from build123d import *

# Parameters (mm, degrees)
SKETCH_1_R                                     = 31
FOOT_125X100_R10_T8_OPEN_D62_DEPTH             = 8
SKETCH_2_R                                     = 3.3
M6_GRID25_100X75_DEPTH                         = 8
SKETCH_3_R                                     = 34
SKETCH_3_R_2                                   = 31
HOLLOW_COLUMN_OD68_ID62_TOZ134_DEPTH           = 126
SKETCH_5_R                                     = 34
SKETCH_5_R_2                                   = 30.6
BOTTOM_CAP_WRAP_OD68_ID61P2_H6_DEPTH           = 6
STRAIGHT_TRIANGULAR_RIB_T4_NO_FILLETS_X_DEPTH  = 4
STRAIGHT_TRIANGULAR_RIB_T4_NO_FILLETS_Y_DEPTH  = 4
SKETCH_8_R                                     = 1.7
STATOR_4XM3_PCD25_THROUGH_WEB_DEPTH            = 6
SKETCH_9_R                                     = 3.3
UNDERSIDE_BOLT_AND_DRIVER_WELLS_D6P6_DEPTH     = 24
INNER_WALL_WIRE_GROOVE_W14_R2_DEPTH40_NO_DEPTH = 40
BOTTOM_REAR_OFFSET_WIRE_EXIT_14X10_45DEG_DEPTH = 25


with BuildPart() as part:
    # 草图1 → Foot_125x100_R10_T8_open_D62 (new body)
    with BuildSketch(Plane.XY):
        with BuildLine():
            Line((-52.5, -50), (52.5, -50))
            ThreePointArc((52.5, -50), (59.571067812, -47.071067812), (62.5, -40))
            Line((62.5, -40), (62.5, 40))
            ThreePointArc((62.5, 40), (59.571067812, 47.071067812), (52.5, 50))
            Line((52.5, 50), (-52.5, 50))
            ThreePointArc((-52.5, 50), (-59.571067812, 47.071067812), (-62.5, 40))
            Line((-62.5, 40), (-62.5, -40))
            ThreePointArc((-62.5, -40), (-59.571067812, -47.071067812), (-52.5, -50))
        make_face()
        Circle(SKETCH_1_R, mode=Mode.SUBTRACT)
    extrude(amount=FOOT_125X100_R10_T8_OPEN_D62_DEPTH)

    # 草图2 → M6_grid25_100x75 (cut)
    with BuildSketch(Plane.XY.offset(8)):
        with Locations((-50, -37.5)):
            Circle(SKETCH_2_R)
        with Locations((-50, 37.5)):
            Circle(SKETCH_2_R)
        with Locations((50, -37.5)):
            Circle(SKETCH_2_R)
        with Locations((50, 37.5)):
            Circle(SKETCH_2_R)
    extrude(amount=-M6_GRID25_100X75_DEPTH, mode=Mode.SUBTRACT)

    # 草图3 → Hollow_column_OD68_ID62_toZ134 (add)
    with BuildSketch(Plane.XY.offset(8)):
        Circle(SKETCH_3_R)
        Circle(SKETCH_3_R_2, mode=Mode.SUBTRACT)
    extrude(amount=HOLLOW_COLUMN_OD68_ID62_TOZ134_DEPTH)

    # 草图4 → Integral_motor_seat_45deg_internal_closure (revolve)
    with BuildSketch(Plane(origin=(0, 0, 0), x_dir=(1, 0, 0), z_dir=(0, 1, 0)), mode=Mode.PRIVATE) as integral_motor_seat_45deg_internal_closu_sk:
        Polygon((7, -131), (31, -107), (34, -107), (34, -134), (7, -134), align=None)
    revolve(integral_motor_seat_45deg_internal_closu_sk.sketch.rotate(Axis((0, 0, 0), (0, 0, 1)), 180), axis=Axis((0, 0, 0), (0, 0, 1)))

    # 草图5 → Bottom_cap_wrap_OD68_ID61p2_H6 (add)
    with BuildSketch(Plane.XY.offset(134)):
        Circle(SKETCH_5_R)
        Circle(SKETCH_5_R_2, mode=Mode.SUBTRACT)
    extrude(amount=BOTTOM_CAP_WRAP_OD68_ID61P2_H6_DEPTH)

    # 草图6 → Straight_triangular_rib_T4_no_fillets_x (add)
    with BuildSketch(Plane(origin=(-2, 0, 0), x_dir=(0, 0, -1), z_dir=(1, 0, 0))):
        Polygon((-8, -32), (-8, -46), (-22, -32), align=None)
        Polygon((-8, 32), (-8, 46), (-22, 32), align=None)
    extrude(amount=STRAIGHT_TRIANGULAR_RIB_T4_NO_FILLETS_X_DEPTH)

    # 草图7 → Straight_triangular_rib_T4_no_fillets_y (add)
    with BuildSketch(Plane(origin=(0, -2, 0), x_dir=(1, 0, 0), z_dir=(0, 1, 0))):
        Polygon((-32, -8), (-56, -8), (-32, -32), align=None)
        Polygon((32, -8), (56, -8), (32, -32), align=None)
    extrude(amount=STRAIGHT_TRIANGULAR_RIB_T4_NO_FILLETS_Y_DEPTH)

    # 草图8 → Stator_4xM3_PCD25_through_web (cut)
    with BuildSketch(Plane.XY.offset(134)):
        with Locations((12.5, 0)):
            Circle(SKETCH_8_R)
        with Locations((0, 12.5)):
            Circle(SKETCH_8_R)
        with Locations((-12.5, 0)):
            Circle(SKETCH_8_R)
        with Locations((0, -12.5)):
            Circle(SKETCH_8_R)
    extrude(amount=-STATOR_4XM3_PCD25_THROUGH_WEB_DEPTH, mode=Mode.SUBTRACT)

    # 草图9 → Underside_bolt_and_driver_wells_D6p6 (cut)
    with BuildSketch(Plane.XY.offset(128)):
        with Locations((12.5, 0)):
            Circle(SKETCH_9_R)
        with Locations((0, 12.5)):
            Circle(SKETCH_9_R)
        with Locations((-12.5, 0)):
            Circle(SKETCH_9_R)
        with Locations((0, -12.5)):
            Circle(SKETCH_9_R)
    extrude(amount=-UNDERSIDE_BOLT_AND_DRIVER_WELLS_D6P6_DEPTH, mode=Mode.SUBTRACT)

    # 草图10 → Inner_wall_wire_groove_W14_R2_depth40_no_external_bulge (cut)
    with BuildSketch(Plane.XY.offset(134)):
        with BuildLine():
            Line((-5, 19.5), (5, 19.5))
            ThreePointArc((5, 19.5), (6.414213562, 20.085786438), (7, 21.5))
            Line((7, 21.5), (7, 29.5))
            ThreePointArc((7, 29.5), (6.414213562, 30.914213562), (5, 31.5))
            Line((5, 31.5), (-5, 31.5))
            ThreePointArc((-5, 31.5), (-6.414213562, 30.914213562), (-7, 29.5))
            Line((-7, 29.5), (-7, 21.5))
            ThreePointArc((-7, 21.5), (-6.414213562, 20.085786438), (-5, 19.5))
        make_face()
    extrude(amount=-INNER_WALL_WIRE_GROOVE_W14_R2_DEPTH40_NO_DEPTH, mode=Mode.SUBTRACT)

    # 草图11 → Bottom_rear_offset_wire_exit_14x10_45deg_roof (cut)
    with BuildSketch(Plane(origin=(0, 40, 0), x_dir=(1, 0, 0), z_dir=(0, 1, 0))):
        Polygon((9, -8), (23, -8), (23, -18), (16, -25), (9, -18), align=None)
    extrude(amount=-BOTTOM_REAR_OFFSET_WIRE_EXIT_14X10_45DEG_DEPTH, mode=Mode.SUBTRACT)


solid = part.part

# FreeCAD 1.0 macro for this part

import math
import FreeCAD as App
import Part
import Sketcher
from FreeCAD import Vector

doc = App.newDocument("Part")
body = doc.addObject("PartDesign::Body", "Body")

# Sketch on XY plane
sketch1 = doc.addObject("Sketcher::SketchObject", "Sketch")
body.addObject(sketch1)
sketch1.AttachmentSupport = (doc.XY_Plane, [""])
sketch1.MapMode = "FlatFace"
sketch1.addGeometry([
    Part.LineSegment(Vector(-52.5, -50, 0), Vector(52.5, -50, 0)),  # 0
    Part.ArcOfCircle(Part.Circle(Vector(52.5, -40, 0), Vector(0, 0, 1), 10), math.radians(-90), math.radians(0)),  # 1
    Part.LineSegment(Vector(62.5, -40, 0), Vector(62.5, 40, 0)),  # 2
    Part.ArcOfCircle(Part.Circle(Vector(52.5, 40, 0), Vector(0, 0, 1), 10), math.radians(0), math.radians(90)),  # 3
    Part.LineSegment(Vector(52.5, 50, 0), Vector(-52.5, 50, 0)),  # 4
    Part.ArcOfCircle(Part.Circle(Vector(-52.5, 40, 0), Vector(0, 0, 1), 10), math.radians(90), math.radians(180)),  # 5
    Part.LineSegment(Vector(-62.5, 40, 0), Vector(-62.5, -40, 0)),  # 6
    Part.ArcOfCircle(Part.Circle(Vector(-52.5, -40, 0), Vector(0, 0, 1), 10), math.radians(180), math.radians(270)),  # 7
    Part.Circle(Vector(0, 0, 0), Vector(0, 0, 1), 31),  # 8
], False)
sketch1.addConstraint([
    Sketcher.Constraint("Tangent", 0, 2, 1, 1),
    Sketcher.Constraint("Tangent", 1, 2, 2, 1),
    Sketcher.Constraint("Tangent", 2, 2, 3, 1),
    Sketcher.Constraint("Tangent", 3, 2, 4, 1),
    Sketcher.Constraint("Tangent", 4, 2, 5, 1),
    Sketcher.Constraint("Tangent", 5, 2, 6, 1),
    Sketcher.Constraint("Tangent", 6, 2, 7, 1),
    Sketcher.Constraint("Tangent", 7, 2, 0, 1),
    Sketcher.Constraint("Horizontal", 0),
    Sketcher.Constraint("Vertical", 2),
    Sketcher.Constraint("Horizontal", 4),
    Sketcher.Constraint("Vertical", 6),
    Sketcher.Constraint("Coincident", 8, 3, -1, 1),
    Sketcher.Constraint("Equal", 1, 3),
    Sketcher.Constraint("Equal", 3, 5),
    Sketcher.Constraint("Equal", 5, 7),
    Sketcher.Constraint("Symmetric", 1, 3, 5, 3, -1, 1),
    Sketcher.Constraint("Diameter", 8, 62.0),
    Sketcher.Constraint("Radius", 1, 10.0),
    Sketcher.Constraint("DistanceX", 0, 1, 0, 2, 105.0),
    Sketcher.Constraint("DistanceY", 2, 1, 2, 2, 80.0),
])
pad1 = doc.addObject("PartDesign::Pad", "Pad")
body.addObject(pad1)
pad1.Profile = sketch1
pad1.Length = 8

# Sketch on XY plane
sketch2 = doc.addObject("Sketcher::SketchObject", "Sketch001")
body.addObject(sketch2)
sketch2.AttachmentSupport = (doc.XY_Plane, [""])
sketch2.MapMode = "FlatFace"
sketch2.AttachmentOffset = App.Placement(Vector(0, 0, 8), App.Rotation())
sketch2.addGeometry([
    Part.Circle(Vector(-50, -37.5, 0), Vector(0, 0, 1), 3.3),
    Part.Circle(Vector(-50, 37.5, 0), Vector(0, 0, 1), 3.3),
    Part.Circle(Vector(50, -37.5, 0), Vector(0, 0, 1), 3.3),
    Part.Circle(Vector(50, 37.5, 0), Vector(0, 0, 1), 3.3),
], False)
sketch2.addConstraint([
    Sketcher.Constraint("Equal", 0, 1),
    Sketcher.Constraint("Equal", 1, 2),
    Sketcher.Constraint("Equal", 2, 3),
    Sketcher.Constraint("Symmetric", 1, 3, 2, 3, -1, 1),
    Sketcher.Constraint("Symmetric", 0, 3, 3, 3, -1, 1),
    Sketcher.Constraint("Symmetric", 0, 3, 2, 3, -2),
    Sketcher.Constraint("Diameter", 0, 6.6),
    Sketcher.Constraint("DistanceX", 0, 3, -1, 1, 50.0),
    Sketcher.Constraint("DistanceY", 0, 3, 1, 3, 75.0),
])
pocket1 = doc.addObject("PartDesign::Pocket", "Pocket")
body.addObject(pocket1)
pocket1.Profile = sketch2
pocket1.Length = 8

# Sketch on XY plane
sketch3 = doc.addObject("Sketcher::SketchObject", "Sketch002")
body.addObject(sketch3)
sketch3.AttachmentSupport = (doc.XY_Plane, [""])
sketch3.MapMode = "FlatFace"
sketch3.AttachmentOffset = App.Placement(Vector(0, 0, 8), App.Rotation())
sketch3.addGeometry([
    Part.Circle(Vector(0, 0, 0), Vector(0, 0, 1), 34),
    Part.Circle(Vector(0, 0, 0), Vector(0, 0, 1), 31),
], False)
sketch3.addConstraint([
    Sketcher.Constraint("Coincident", 0, 3, -1, 1),
    Sketcher.Constraint("Coincident", 1, 3, -1, 1),
    Sketcher.Constraint("Diameter", 0, 68.0),
    Sketcher.Constraint("Diameter", 1, 62.0),
])
pad2 = doc.addObject("PartDesign::Pad", "Pad001")
body.addObject(pad2)
pad2.Profile = sketch3
pad2.Length = 126

# Sketch on XZ plane
sketch4 = doc.addObject("Sketcher::SketchObject", "Sketch003")
body.addObject(sketch4)
sketch4.AttachmentSupport = (doc.XZ_Plane, [""])
sketch4.MapMode = "FlatFace"
sketch4.addGeometry([
    Part.LineSegment(Vector(31, 107, 0), Vector(7, 131, 0)),  # 0
    Part.LineSegment(Vector(7, 131, 0), Vector(7, 134, 0)),  # 1
    Part.LineSegment(Vector(7, 134, 0), Vector(34, 134, 0)),  # 2
    Part.LineSegment(Vector(34, 134, 0), Vector(34, 107, 0)),  # 3
    Part.LineSegment(Vector(34, 107, 0), Vector(31, 107, 0)),  # 4
], False)
sketch4.addConstraint([
    Sketcher.Constraint("Coincident", 0, 2, 1, 1),
    Sketcher.Constraint("Coincident", 1, 2, 2, 1),
    Sketcher.Constraint("Coincident", 2, 2, 3, 1),
    Sketcher.Constraint("Coincident", 3, 2, 4, 1),
    Sketcher.Constraint("Coincident", 4, 2, 0, 1),
    Sketcher.Constraint("Vertical", 1),
    Sketcher.Constraint("Horizontal", 2),
    Sketcher.Constraint("Vertical", 3),
    Sketcher.Constraint("Horizontal", 4),
    Sketcher.Constraint("Equal", 4, 1),
    Sketcher.Constraint("Equal", 2, 3),
    Sketcher.Constraint("DistanceX", 2, 1, 2, 2, 27.0),
    Sketcher.Constraint("DistanceX", 4, 2, 4, 1, 3.0),
    Sketcher.Constraint("DistanceX", -1, 1, 0, 2, 7.0),
    Sketcher.Constraint("DistanceY", -1, 1, 0, 2, 131.0),
])
revolution = doc.addObject("PartDesign::Revolution", "Revolution")
body.addObject(revolution)
revolution.Profile = sketch4
revolution.ReferenceAxis = (sketch4, ["V_Axis"])
revolution.Angle = 360

# Sketch on XY plane
sketch5 = doc.addObject("Sketcher::SketchObject", "Sketch004")
body.addObject(sketch5)
sketch5.AttachmentSupport = (doc.XY_Plane, [""])
sketch5.MapMode = "FlatFace"
sketch5.AttachmentOffset = App.Placement(Vector(0, 0, 134), App.Rotation())
sketch5.addGeometry([
    Part.Circle(Vector(0, 0, 0), Vector(0, 0, 1), 34),
    Part.Circle(Vector(0, 0, 0), Vector(0, 0, 1), 30.6),
], False)
sketch5.addConstraint([
    Sketcher.Constraint("Coincident", 0, 3, -1, 1),
    Sketcher.Constraint("Coincident", 1, 3, -1, 1),
    Sketcher.Constraint("Diameter", 0, 68.0),
    Sketcher.Constraint("Diameter", 1, 61.2),
])
pad3 = doc.addObject("PartDesign::Pad", "Pad002")
body.addObject(pad3)
pad3.Profile = sketch5
pad3.Length = 6

# Sketch on YZ plane
sketch6 = doc.addObject("Sketcher::SketchObject", "Sketch005")
body.addObject(sketch6)
sketch6.AttachmentSupport = (doc.YZ_Plane, [""])
sketch6.MapMode = "FlatFace"
sketch6.AttachmentOffset = App.Placement(Vector(0, 0, -2), App.Rotation())
sketch6.addGeometry([
    Part.LineSegment(Vector(-46, 8, 0), Vector(-32, 8, 0)),  # 0
    Part.LineSegment(Vector(-32, 8, 0), Vector(-32, 22, 0)),  # 1
    Part.LineSegment(Vector(-32, 22, 0), Vector(-46, 8, 0)),  # 2
    Part.LineSegment(Vector(32, 8, 0), Vector(46, 8, 0)),  # 3
    Part.LineSegment(Vector(46, 8, 0), Vector(32, 22, 0)),  # 4
    Part.LineSegment(Vector(32, 22, 0), Vector(32, 8, 0)),  # 5
], False)
sketch6.addConstraint([
    Sketcher.Constraint("Coincident", 0, 2, 1, 1),
    Sketcher.Constraint("Coincident", 1, 2, 2, 1),
    Sketcher.Constraint("Coincident", 2, 2, 0, 1),
    Sketcher.Constraint("Coincident", 3, 2, 4, 1),
    Sketcher.Constraint("Coincident", 4, 2, 5, 1),
    Sketcher.Constraint("Coincident", 5, 2, 3, 1),
    Sketcher.Constraint("Horizontal", 0),
    Sketcher.Constraint("Vertical", 1),
    Sketcher.Constraint("Horizontal", 3),
    Sketcher.Constraint("Vertical", 5),
    Sketcher.Constraint("Symmetric", 2, 2, 3, 2, -2),
    Sketcher.Constraint("Symmetric", 1, 2, 4, 2, -2),
    Sketcher.Constraint("Perpendicular", 2, 4),
    Sketcher.Constraint("DistanceX", 0, 1, 0, 2, 14.0),
    Sketcher.Constraint("DistanceX", 0, 2, -1, 1, 32.0),
    Sketcher.Constraint("DistanceY", -1, 1, 0, 2, 8.0),
])
pad4 = doc.addObject("PartDesign::Pad", "Pad003")
body.addObject(pad4)
pad4.Profile = sketch6
pad4.Length = 4

# Sketch on XZ plane
sketch7 = doc.addObject("Sketcher::SketchObject", "Sketch006")
body.addObject(sketch7)
sketch7.AttachmentSupport = (doc.XZ_Plane, [""])
sketch7.MapMode = "FlatFace"
sketch7.AttachmentOffset = App.Placement(Vector(0, 0, 2), App.Rotation())
sketch7.addGeometry([
    Part.LineSegment(Vector(-32, 8, 0), Vector(-56, 8, 0)),  # 0
    Part.LineSegment(Vector(-56, 8, 0), Vector(-32, 32, 0)),  # 1
    Part.LineSegment(Vector(-32, 32, 0), Vector(-32, 8, 0)),  # 2
    Part.LineSegment(Vector(56, 8, 0), Vector(32, 8, 0)),  # 3
    Part.LineSegment(Vector(32, 8, 0), Vector(32, 32, 0)),  # 4
    Part.LineSegment(Vector(32, 32, 0), Vector(56, 8, 0)),  # 5
], False)
sketch7.addConstraint([
    Sketcher.Constraint("Coincident", 0, 2, 1, 1),
    Sketcher.Constraint("Coincident", 1, 2, 2, 1),
    Sketcher.Constraint("Coincident", 2, 2, 0, 1),
    Sketcher.Constraint("Coincident", 3, 2, 4, 1),
    Sketcher.Constraint("Coincident", 4, 2, 5, 1),
    Sketcher.Constraint("Coincident", 5, 2, 3, 1),
    Sketcher.Constraint("Horizontal", 0),
    Sketcher.Constraint("Vertical", 2),
    Sketcher.Constraint("Horizontal", 3),
    Sketcher.Constraint("Vertical", 4),
    Sketcher.Constraint("Symmetric", 2, 2, 3, 2, -2),
    Sketcher.Constraint("Perpendicular", 1, 5),
    Sketcher.Constraint("Horizontal", 1, 2, 4, 2),
    Sketcher.Constraint("Equal", 0, 3),
    Sketcher.Constraint("DistanceX", 0, 2, 0, 1, 24.0),
    Sketcher.Constraint("DistanceX", 0, 2, -1, 1, 56.0),
    Sketcher.Constraint("DistanceY", -1, 1, 0, 2, 8.0),
])
pad5 = doc.addObject("PartDesign::Pad", "Pad004")
body.addObject(pad5)
pad5.Profile = sketch7
pad5.Length = 4
pad5.Reversed = True

# Sketch on XY plane
sketch8 = doc.addObject("Sketcher::SketchObject", "Sketch007")
body.addObject(sketch8)
sketch8.AttachmentSupport = (doc.XY_Plane, [""])
sketch8.MapMode = "FlatFace"
sketch8.AttachmentOffset = App.Placement(Vector(0, 0, 134), App.Rotation())
sketch8.addGeometry([
    Part.Circle(Vector(12.5, 0, 0), Vector(0, 0, 1), 1.7),
    Part.Circle(Vector(0, 12.5, 0), Vector(0, 0, 1), 1.7),
    Part.Circle(Vector(-12.5, 0, 0), Vector(0, 0, 1), 1.7),
    Part.Circle(Vector(0, -12.5, 0), Vector(0, 0, 1), 1.7),
], False)
sketch8.addConstraint([
    Sketcher.Constraint("Equal", 0, 1),
    Sketcher.Constraint("Equal", 1, 2),
    Sketcher.Constraint("Equal", 2, 3),
    Sketcher.Constraint("Symmetric", 0, 3, 2, 3, -1, 1),
    Sketcher.Constraint("Symmetric", 1, 3, 3, 3, -1, 1),
    Sketcher.Constraint("PointOnObject", 0, 3, -1),
    Sketcher.Constraint("PointOnObject", 1, 3, -2),
    Sketcher.Constraint("Diameter", 0, 3.4),
    Sketcher.Constraint("DistanceX", 2, 3, 0, 3, 25.0),
    Sketcher.Constraint("DistanceY", 3, 3, 1, 3, 25.0),
])
pocket2 = doc.addObject("PartDesign::Pocket", "Pocket001")
body.addObject(pocket2)
pocket2.Profile = sketch8
pocket2.Length = 6

# Sketch on XY plane
sketch9 = doc.addObject("Sketcher::SketchObject", "Sketch008")
body.addObject(sketch9)
sketch9.AttachmentSupport = (doc.XY_Plane, [""])
sketch9.MapMode = "FlatFace"
sketch9.AttachmentOffset = App.Placement(Vector(0, 0, 128), App.Rotation())
sketch9.addGeometry([
    Part.Circle(Vector(12.5, 0, 0), Vector(0, 0, 1), 3.3),
    Part.Circle(Vector(0, 12.5, 0), Vector(0, 0, 1), 3.3),
    Part.Circle(Vector(-12.5, 0, 0), Vector(0, 0, 1), 3.3),
    Part.Circle(Vector(0, -12.5, 0), Vector(0, 0, 1), 3.3),
], False)
sketch9.addConstraint([
    Sketcher.Constraint("Equal", 0, 1),
    Sketcher.Constraint("Equal", 1, 2),
    Sketcher.Constraint("Equal", 2, 3),
    Sketcher.Constraint("Symmetric", 0, 3, 2, 3, -1, 1),
    Sketcher.Constraint("Symmetric", 1, 3, 3, 3, -1, 1),
    Sketcher.Constraint("PointOnObject", 0, 3, -1),
    Sketcher.Constraint("PointOnObject", 1, 3, -2),
    Sketcher.Constraint("Diameter", 0, 6.6),
    Sketcher.Constraint("DistanceX", 2, 3, 0, 3, 25.0),
    Sketcher.Constraint("DistanceY", 3, 3, 1, 3, 25.0),
])
pocket3 = doc.addObject("PartDesign::Pocket", "Pocket002")
body.addObject(pocket3)
pocket3.Profile = sketch9
pocket3.Length = 24

# Sketch on XY plane
sketch10 = doc.addObject("Sketcher::SketchObject", "Sketch009")
body.addObject(sketch10)
sketch10.AttachmentSupport = (doc.XY_Plane, [""])
sketch10.MapMode = "FlatFace"
sketch10.AttachmentOffset = App.Placement(Vector(0, 0, 134), App.Rotation())
sketch10.addGeometry([
    Part.LineSegment(Vector(-5, 19.5, 0), Vector(5, 19.5, 0)),  # 0
    Part.ArcOfCircle(Part.Circle(Vector(5, 21.5, 0), Vector(0, 0, 1), 2), math.radians(-90), math.radians(0)),  # 1
    Part.LineSegment(Vector(7, 21.5, 0), Vector(7, 29.5, 0)),  # 2
    Part.ArcOfCircle(Part.Circle(Vector(5, 29.5, 0), Vector(0, 0, 1), 2), math.radians(0), math.radians(90)),  # 3
    Part.LineSegment(Vector(5, 31.5, 0), Vector(-5, 31.5, 0)),  # 4
    Part.ArcOfCircle(Part.Circle(Vector(-5, 29.5, 0), Vector(0, 0, 1), 2), math.radians(90), math.radians(180)),  # 5
    Part.LineSegment(Vector(-7, 29.5, 0), Vector(-7, 21.5, 0)),  # 6
    Part.ArcOfCircle(Part.Circle(Vector(-5, 21.5, 0), Vector(0, 0, 1), 2), math.radians(-180), math.radians(-90)),  # 7
], False)
sketch10.addConstraint([
    Sketcher.Constraint("Tangent", 0, 2, 1, 1),
    Sketcher.Constraint("Tangent", 1, 2, 2, 1),
    Sketcher.Constraint("Tangent", 2, 2, 3, 1),
    Sketcher.Constraint("Tangent", 3, 2, 4, 1),
    Sketcher.Constraint("Tangent", 4, 2, 5, 1),
    Sketcher.Constraint("Tangent", 5, 2, 6, 1),
    Sketcher.Constraint("Tangent", 6, 2, 7, 1),
    Sketcher.Constraint("Tangent", 7, 2, 0, 1),
    Sketcher.Constraint("Horizontal", 0),
    Sketcher.Constraint("Vertical", 2),
    Sketcher.Constraint("Horizontal", 4),
    Sketcher.Constraint("Vertical", 6),
    Sketcher.Constraint("Equal", 1, 3),
    Sketcher.Constraint("Equal", 3, 5),
    Sketcher.Constraint("Equal", 5, 7),
    Sketcher.Constraint("Radius", 1, 2.0),
    Sketcher.Constraint("DistanceX", 0, 1, 0, 2, 10.0),
    Sketcher.Constraint("DistanceY", 2, 1, 2, 2, 8.0),
    Sketcher.Constraint("DistanceX", -1, 1, 1, 3, 5.0),
    Sketcher.Constraint("DistanceY", -1, 1, 1, 3, 21.5),
])
pocket4 = doc.addObject("PartDesign::Pocket", "Pocket003")
body.addObject(pocket4)
pocket4.Profile = sketch10
pocket4.Length = 40

# Sketch on XZ plane
sketch11 = doc.addObject("Sketcher::SketchObject", "Sketch010")
body.addObject(sketch11)
sketch11.AttachmentSupport = (doc.XZ_Plane, [""])
sketch11.MapMode = "FlatFace"
sketch11.AttachmentOffset = App.Placement(Vector(0, 0, -40), App.Rotation())
sketch11.addGeometry([
    Part.LineSegment(Vector(23, 8, 0), Vector(9, 8, 0)),  # 0
    Part.LineSegment(Vector(9, 8, 0), Vector(9, 18, 0)),  # 1
    Part.LineSegment(Vector(9, 18, 0), Vector(16, 25, 0)),  # 2
    Part.LineSegment(Vector(16, 25, 0), Vector(23, 18, 0)),  # 3
    Part.LineSegment(Vector(23, 18, 0), Vector(23, 8, 0)),  # 4
], False)
sketch11.addConstraint([
    Sketcher.Constraint("Coincident", 0, 2, 1, 1),
    Sketcher.Constraint("Coincident", 1, 2, 2, 1),
    Sketcher.Constraint("Coincident", 2, 2, 3, 1),
    Sketcher.Constraint("Coincident", 3, 2, 4, 1),
    Sketcher.Constraint("Coincident", 4, 2, 0, 1),
    Sketcher.Constraint("Horizontal", 0),
    Sketcher.Constraint("Vertical", 1),
    Sketcher.Constraint("Vertical", 4),
    Sketcher.Constraint("Perpendicular", 2, 3),
    Sketcher.Constraint("Horizontal", 1, 2, 3, 2),
    Sketcher.Constraint("Equal", 2, 3),
    Sketcher.Constraint("DistanceX", 0, 2, 0, 1, 14.0),
    Sketcher.Constraint("DistanceY", 1, 1, 1, 2, 10.0),
    Sketcher.Constraint("DistanceX", -1, 1, 0, 2, 9.0),
    Sketcher.Constraint("DistanceY", -1, 1, 0, 2, 8.0),
])
pocket5 = doc.addObject("PartDesign::Pocket", "Pocket004")
body.addObject(pocket5)
pocket5.Profile = sketch11
pocket5.Length = 25
pocket5.Reversed = True

doc.recompute()
